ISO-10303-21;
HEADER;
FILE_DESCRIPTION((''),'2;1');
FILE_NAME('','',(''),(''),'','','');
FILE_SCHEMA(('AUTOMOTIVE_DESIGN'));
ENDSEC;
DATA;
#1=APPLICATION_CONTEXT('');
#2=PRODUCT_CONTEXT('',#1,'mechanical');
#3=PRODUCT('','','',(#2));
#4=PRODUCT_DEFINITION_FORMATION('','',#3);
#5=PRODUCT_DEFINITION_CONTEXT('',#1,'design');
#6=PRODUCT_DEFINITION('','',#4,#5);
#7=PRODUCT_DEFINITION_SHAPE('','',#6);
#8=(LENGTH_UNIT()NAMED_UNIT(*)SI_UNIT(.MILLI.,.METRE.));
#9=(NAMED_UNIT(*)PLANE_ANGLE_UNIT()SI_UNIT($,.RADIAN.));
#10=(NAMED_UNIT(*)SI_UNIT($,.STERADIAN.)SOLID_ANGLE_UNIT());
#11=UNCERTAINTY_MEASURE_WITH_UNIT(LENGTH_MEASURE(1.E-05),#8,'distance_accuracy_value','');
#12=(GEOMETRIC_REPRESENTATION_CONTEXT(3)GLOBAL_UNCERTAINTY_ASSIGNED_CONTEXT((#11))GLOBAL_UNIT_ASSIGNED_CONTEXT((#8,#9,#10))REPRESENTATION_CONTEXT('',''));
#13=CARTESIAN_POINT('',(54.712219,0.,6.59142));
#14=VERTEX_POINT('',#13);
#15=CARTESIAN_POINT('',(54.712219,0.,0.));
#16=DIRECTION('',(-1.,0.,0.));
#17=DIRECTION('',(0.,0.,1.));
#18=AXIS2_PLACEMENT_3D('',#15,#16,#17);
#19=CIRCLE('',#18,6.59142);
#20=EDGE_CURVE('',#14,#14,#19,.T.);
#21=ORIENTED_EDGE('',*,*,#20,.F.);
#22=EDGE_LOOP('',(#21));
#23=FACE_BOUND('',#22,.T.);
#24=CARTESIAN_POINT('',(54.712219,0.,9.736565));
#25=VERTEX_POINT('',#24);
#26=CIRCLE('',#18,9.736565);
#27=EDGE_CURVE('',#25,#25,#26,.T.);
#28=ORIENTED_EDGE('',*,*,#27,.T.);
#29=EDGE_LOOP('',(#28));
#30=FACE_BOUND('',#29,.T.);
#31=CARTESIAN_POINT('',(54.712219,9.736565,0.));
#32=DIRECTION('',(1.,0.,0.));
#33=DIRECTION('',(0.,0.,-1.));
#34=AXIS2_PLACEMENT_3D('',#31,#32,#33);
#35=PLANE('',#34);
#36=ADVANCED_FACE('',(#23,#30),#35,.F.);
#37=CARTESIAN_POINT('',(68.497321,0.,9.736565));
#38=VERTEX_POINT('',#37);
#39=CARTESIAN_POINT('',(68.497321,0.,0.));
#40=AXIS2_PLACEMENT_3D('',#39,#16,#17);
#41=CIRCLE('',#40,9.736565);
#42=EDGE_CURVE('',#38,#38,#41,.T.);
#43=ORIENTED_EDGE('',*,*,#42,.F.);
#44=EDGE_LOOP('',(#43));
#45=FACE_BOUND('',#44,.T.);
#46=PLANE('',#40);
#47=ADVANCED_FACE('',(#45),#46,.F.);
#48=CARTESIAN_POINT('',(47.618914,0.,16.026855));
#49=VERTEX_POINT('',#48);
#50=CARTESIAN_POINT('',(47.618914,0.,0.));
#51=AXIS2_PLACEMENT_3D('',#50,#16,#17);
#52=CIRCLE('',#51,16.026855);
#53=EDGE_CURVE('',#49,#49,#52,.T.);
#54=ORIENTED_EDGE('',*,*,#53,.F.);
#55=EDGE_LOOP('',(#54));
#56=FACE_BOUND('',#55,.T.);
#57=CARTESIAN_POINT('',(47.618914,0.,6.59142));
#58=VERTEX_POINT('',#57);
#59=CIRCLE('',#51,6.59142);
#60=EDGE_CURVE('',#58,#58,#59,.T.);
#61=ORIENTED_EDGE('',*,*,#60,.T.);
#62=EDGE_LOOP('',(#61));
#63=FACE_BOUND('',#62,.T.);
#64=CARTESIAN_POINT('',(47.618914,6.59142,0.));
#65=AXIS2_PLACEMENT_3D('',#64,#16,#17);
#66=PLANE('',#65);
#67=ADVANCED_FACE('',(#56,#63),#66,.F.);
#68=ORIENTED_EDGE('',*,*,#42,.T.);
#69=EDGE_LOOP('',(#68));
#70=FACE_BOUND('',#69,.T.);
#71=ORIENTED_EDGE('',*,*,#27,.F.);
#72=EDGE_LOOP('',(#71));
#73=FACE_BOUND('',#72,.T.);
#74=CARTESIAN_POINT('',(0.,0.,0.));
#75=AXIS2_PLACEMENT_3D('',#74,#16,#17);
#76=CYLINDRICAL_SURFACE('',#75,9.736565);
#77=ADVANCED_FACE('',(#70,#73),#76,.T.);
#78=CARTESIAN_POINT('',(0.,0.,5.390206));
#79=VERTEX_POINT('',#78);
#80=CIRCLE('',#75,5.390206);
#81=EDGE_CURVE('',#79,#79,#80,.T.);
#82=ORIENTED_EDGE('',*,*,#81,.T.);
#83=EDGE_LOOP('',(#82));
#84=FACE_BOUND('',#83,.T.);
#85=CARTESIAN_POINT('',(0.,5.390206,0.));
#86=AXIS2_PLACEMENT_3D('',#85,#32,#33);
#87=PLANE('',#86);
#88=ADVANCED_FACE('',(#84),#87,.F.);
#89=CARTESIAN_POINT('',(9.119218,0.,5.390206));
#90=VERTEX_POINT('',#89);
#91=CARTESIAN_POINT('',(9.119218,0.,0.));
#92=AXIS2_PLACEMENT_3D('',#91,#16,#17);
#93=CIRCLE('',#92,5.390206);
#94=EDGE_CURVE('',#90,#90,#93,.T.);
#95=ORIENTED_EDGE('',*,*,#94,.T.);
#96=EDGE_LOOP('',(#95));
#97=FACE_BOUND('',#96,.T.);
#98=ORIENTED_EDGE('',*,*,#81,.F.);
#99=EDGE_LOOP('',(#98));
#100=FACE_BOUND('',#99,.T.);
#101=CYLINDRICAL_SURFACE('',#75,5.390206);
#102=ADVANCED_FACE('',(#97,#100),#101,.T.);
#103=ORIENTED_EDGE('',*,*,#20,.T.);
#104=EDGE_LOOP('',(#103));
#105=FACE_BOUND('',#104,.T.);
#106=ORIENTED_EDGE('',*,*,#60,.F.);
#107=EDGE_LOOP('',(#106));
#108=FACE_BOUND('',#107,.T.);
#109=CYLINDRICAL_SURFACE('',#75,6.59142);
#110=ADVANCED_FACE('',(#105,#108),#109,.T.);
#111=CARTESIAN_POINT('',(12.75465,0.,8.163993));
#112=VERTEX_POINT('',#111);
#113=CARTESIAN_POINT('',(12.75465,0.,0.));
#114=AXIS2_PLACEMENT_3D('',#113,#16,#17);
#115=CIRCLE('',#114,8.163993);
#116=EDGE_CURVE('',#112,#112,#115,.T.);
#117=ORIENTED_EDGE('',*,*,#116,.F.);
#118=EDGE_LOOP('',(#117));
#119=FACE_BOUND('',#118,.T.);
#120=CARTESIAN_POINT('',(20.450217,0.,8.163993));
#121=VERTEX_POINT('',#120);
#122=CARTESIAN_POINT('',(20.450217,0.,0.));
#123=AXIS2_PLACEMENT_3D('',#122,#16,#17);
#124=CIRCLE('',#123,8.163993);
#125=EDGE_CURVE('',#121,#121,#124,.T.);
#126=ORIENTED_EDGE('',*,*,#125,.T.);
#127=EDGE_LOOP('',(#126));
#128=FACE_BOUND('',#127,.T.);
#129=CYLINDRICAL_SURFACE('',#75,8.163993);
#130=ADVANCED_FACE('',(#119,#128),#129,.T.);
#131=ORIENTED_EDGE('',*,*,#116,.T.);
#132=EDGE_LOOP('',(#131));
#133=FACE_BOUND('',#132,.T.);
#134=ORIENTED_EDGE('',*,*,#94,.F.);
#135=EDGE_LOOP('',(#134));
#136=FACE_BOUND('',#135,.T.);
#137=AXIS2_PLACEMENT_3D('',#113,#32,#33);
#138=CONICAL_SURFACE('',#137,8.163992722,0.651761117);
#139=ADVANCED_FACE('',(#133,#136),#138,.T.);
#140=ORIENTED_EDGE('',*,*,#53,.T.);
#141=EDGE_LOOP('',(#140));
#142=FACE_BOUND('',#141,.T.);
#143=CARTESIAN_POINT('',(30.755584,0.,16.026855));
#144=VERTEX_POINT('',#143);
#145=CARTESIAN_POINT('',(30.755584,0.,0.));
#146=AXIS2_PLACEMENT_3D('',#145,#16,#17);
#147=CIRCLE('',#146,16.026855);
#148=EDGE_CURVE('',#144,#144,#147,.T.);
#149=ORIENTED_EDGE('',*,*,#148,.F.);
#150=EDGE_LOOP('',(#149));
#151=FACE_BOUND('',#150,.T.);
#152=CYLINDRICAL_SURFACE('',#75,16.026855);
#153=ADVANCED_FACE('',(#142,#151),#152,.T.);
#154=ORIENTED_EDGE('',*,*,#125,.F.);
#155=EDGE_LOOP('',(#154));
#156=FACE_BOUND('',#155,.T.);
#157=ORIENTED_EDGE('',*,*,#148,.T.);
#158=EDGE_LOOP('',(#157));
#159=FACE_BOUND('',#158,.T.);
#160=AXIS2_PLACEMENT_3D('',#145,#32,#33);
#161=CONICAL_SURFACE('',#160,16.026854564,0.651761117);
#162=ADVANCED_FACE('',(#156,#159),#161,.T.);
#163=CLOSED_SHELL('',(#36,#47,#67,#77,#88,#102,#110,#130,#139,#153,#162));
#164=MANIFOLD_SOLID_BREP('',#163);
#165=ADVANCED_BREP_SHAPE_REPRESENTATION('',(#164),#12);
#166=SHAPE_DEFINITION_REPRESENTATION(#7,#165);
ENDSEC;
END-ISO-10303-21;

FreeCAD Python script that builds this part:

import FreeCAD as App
import Part
import Sketcher
Q = App.Units.Quantity

doc = App.newDocument("Part")
body = doc.addObject("PartDesign::Body", "Body")

# Sketch on XY plane
sketch1 = body.newObject("Sketcher::SketchObject", "Sketch")
sketch1.AttachmentSupport = (doc.getObject("XY_Plane"), [""])
sketch1.MapMode = "FlatFace"
sketch1.addGeometry([
    Part.LineSegment(App.Vector(68.497321, 0, 0), App.Vector(68.497321, 9.736565, 0)),  # 0
    Part.LineSegment(App.Vector(68.497321, 9.736565, 0), App.Vector(54.712219, 9.736565, 0)),  # 1
    Part.LineSegment(App.Vector(54.712219, 9.736565, 0), App.Vector(54.712219, 6.59142, 0)),  # 2
    Part.LineSegment(App.Vector(54.712219, 6.59142, 0), App.Vector(47.618914, 6.59142, 0)),  # 3
    Part.LineSegment(App.Vector(47.618914, 6.59142, 0), App.Vector(47.618914, 16.026855, 0)),  # 4
    Part.LineSegment(App.Vector(47.618914, 16.026855, 0), App.Vector(30.755584, 16.026855, 0)),  # 5
    Part.LineSegment(App.Vector(30.755584, 16.026855, 0), App.Vector(20.450217, 8.163993, 0)),  # 6
    Part.LineSegment(App.Vector(20.450217, 8.163993, 0), App.Vector(12.75465, 8.163993, 0)),  # 7
    Part.LineSegment(App.Vector(12.75465, 8.163993, 0), App.Vector(9.119218, 5.390206, 0)),  # 8
    Part.LineSegment(App.Vector(9.119218, 5.390206, 0), App.Vector(0, 5.390206, 0)),  # 9
    Part.LineSegment(App.Vector(0, 5.390206, 0), App.Vector(0, 0, 0)),  # 10
    Part.LineSegment(App.Vector(0, 0, 0), App.Vector(68.497321, 0, 0)),  # 11
], False)
sketch1.addConstraint([
    Sketcher.Constraint("Coincident", 0, 2, 1, 1),
    Sketcher.Constraint("Coincident", 1, 2, 2, 1),
    Sketcher.Constraint("Coincident", 2, 2, 3, 1),
    Sketcher.Constraint("Coincident", 3, 2, 4, 1),
    Sketcher.Constraint("Coincident", 4, 2, 5, 1),
    Sketcher.Constraint("Coincident", 5, 2, 6, 1),
    Sketcher.Constraint("Coincident", 6, 2, 7, 1),
    Sketcher.Constraint("Coincident", 7, 2, 8, 1),
    Sketcher.Constraint("Coincident", 8, 2, 9, 1),
    Sketcher.Constraint("Coincident", 9, 2, 10, 1),
    Sketcher.Constraint("Coincident", 10, 2, 11, 1),
    Sketcher.Constraint("Coincident", 11, 2, 0, 1),
    Sketcher.Constraint("Vertical", 0),
    Sketcher.Constraint("Horizontal", 1),
    Sketcher.Constraint("Vertical", 2),
    Sketcher.Constraint("Horizontal", 3),
    Sketcher.Constraint("Vertical", 4),
    Sketcher.Constraint("Horizontal", 5),
    Sketcher.Constraint("Horizontal", 7),
    Sketcher.Constraint("Horizontal", 9),
    Sketcher.Constraint("Vertical", 10),
    Sketcher.Constraint("Horizontal", 11),
    Sketcher.Constraint("Coincident", 10, 2, -1, 1),
    Sketcher.Constraint("Parallel", 6, 8),
    Sketcher.Constraint("DistanceX", 8, 2, 6, 2, Q("11.330999 mm")),
    Sketcher.Constraint("DistanceX", 5, 2, 5, 1, Q("16.863329 mm")),
    Sketcher.Constraint("DistanceX", 11, 1, 11, 2, Q("68.497321 mm")),
    Sketcher.Constraint("DistanceX", 1, 2, 1, 1, Q("13.785102 mm")),
    Sketcher.Constraint("DistanceX", 3, 2, 3, 1, Q("7.093305 mm")),
    Sketcher.Constraint("DistanceX", 7, 2, 7, 1, Q("7.695567 mm")),
    Sketcher.Constraint("DistanceX", 9, 2, 9, 1, Q("9.119218 mm")),
    Sketcher.Constraint("DistanceY", 0, 1, 0, 2, Q("9.736565 mm")),
    Sketcher.Constraint("DistanceY", 2, 2, 2, 1, Q("3.145145 mm")),
    Sketcher.Constraint("DistanceY", 4, 1, 4, 2, Q("9.435434 mm")),
    Sketcher.Constraint("DistanceY", 10, 2, 10, 1, Q("5.390206 mm")),
])
revolution = body.newObject("PartDesign::Revolution", "Revolution")
revolution.Profile = sketch1
revolution.ReferenceAxis = (sketch1, ["H_Axis"])
revolution.Angle = 360

doc.recompute()
